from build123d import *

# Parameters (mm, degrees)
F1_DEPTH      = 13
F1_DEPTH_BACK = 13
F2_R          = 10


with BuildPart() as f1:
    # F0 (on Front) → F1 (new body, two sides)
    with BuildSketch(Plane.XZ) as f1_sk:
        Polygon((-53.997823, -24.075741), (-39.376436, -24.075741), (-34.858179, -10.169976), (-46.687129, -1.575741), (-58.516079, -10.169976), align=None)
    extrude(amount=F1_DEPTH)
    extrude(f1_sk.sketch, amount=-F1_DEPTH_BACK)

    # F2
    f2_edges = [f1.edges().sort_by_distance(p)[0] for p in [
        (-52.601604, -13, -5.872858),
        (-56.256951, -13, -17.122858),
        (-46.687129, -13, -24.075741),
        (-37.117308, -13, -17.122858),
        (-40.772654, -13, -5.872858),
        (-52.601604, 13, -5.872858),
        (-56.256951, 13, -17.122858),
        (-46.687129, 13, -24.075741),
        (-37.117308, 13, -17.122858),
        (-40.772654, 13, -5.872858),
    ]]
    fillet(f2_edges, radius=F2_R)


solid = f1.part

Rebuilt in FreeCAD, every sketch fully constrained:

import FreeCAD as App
import Part
import Sketcher
Q = App.Units.Quantity


def edges_at(feature, points):
    """Names of the edges that pass closest to the given points."""
    edges = feature.Shape.Edges
    near = lambda p: min(range(len(edges)), key=lambda i: edges[i].distToShape(Part.Vertex(*p))[0])
    return sorted({f"Edge{near(p) + 1}" for p in points})

doc = App.newDocument("Part")
body = doc.addObject("PartDesign::Body", "Body")

# Sketch on XZ plane
sketch1 = doc.addObject("Sketcher::SketchObject", "Sketch")
body.addObject(sketch1)
sketch1.AttachmentSupport = (doc.XZ_Plane, [""])
sketch1.MapMode = "FlatFace"
sketch1.addGeometry([
    Part.LineSegment(App.Vector(-54, -24, 0), App.Vector(-39, -24, 0)),  # 0
    Part.LineSegment(App.Vector(-39, -24, 0), App.Vector(-35, -10, 0)),  # 1
    Part.LineSegment(App.Vector(-35, -10, 0), App.Vector(-47, -2, 0)),  # 2
    Part.LineSegment(App.Vector(-47, -2, 0), App.Vector(-59, -10, 0)),  # 3
    Part.LineSegment(App.Vector(-59, -10, 0), App.Vector(-54, -24, 0)),  # 4
], False)
sketch1.addConstraint([
    Sketcher.Constraint("Coincident", 0, 2, 1, 1),
    Sketcher.Constraint("Coincident", 1, 2, 2, 1),
    Sketcher.Constraint("Coincident", 2, 2, 3, 1),
    Sketcher.Constraint("Coincident", 3, 2, 4, 1),
    Sketcher.Constraint("Coincident", 4, 2, 0, 1),
    Sketcher.Constraint("Horizontal", 0),
    Sketcher.Constraint("Horizontal", 1, 2, 3, 2),
    Sketcher.Constraint("Equal", 1, 2),
    Sketcher.Constraint("Equal", 2, 3),
    Sketcher.Constraint("Equal", 3, 4),
    Sketcher.Constraint("Angle", 1, Q("72 deg")),
    Sketcher.Constraint("Angle", 2, Q("144.000001 deg")),
    Sketcher.Constraint("DistanceY", 0, 2, 2, 2, 22.5),
    Sketcher.Constraint("DistanceY", 0, 2, -1, 1, 24.075741),
    Sketcher.Constraint("DistanceX", 1, 2, -1, 1, 34.858179),
])
pad1 = doc.addObject("PartDesign::Pad", "Pad")
body.addObject(pad1)
pad1.Profile = sketch1
pad1.Type = "TwoLengths"
pad1.Length = 13
pad1.Length2 = 13
doc.recompute()

fillet = doc.addObject("PartDesign::Fillet", "Fillet")
body.addObject(fillet)
fillet.Base = (pad1, edges_at(pad1, [
    (-52.602, -13, -5.873),
    (-56.257, -13, -17.123),
    (-46.687, -13, -24.076),
    (-37.117, -13, -17.123),
    (-40.773, -13, -5.873),
    (-52.602, 13, -5.873),
    (-56.257, 13, -17.123),
    (-46.687, 13, -24.076),
    (-37.117, 13, -17.123),
    (-40.773, 13, -5.873),
]))
fillet.Radius = 10

doc.recompute()
